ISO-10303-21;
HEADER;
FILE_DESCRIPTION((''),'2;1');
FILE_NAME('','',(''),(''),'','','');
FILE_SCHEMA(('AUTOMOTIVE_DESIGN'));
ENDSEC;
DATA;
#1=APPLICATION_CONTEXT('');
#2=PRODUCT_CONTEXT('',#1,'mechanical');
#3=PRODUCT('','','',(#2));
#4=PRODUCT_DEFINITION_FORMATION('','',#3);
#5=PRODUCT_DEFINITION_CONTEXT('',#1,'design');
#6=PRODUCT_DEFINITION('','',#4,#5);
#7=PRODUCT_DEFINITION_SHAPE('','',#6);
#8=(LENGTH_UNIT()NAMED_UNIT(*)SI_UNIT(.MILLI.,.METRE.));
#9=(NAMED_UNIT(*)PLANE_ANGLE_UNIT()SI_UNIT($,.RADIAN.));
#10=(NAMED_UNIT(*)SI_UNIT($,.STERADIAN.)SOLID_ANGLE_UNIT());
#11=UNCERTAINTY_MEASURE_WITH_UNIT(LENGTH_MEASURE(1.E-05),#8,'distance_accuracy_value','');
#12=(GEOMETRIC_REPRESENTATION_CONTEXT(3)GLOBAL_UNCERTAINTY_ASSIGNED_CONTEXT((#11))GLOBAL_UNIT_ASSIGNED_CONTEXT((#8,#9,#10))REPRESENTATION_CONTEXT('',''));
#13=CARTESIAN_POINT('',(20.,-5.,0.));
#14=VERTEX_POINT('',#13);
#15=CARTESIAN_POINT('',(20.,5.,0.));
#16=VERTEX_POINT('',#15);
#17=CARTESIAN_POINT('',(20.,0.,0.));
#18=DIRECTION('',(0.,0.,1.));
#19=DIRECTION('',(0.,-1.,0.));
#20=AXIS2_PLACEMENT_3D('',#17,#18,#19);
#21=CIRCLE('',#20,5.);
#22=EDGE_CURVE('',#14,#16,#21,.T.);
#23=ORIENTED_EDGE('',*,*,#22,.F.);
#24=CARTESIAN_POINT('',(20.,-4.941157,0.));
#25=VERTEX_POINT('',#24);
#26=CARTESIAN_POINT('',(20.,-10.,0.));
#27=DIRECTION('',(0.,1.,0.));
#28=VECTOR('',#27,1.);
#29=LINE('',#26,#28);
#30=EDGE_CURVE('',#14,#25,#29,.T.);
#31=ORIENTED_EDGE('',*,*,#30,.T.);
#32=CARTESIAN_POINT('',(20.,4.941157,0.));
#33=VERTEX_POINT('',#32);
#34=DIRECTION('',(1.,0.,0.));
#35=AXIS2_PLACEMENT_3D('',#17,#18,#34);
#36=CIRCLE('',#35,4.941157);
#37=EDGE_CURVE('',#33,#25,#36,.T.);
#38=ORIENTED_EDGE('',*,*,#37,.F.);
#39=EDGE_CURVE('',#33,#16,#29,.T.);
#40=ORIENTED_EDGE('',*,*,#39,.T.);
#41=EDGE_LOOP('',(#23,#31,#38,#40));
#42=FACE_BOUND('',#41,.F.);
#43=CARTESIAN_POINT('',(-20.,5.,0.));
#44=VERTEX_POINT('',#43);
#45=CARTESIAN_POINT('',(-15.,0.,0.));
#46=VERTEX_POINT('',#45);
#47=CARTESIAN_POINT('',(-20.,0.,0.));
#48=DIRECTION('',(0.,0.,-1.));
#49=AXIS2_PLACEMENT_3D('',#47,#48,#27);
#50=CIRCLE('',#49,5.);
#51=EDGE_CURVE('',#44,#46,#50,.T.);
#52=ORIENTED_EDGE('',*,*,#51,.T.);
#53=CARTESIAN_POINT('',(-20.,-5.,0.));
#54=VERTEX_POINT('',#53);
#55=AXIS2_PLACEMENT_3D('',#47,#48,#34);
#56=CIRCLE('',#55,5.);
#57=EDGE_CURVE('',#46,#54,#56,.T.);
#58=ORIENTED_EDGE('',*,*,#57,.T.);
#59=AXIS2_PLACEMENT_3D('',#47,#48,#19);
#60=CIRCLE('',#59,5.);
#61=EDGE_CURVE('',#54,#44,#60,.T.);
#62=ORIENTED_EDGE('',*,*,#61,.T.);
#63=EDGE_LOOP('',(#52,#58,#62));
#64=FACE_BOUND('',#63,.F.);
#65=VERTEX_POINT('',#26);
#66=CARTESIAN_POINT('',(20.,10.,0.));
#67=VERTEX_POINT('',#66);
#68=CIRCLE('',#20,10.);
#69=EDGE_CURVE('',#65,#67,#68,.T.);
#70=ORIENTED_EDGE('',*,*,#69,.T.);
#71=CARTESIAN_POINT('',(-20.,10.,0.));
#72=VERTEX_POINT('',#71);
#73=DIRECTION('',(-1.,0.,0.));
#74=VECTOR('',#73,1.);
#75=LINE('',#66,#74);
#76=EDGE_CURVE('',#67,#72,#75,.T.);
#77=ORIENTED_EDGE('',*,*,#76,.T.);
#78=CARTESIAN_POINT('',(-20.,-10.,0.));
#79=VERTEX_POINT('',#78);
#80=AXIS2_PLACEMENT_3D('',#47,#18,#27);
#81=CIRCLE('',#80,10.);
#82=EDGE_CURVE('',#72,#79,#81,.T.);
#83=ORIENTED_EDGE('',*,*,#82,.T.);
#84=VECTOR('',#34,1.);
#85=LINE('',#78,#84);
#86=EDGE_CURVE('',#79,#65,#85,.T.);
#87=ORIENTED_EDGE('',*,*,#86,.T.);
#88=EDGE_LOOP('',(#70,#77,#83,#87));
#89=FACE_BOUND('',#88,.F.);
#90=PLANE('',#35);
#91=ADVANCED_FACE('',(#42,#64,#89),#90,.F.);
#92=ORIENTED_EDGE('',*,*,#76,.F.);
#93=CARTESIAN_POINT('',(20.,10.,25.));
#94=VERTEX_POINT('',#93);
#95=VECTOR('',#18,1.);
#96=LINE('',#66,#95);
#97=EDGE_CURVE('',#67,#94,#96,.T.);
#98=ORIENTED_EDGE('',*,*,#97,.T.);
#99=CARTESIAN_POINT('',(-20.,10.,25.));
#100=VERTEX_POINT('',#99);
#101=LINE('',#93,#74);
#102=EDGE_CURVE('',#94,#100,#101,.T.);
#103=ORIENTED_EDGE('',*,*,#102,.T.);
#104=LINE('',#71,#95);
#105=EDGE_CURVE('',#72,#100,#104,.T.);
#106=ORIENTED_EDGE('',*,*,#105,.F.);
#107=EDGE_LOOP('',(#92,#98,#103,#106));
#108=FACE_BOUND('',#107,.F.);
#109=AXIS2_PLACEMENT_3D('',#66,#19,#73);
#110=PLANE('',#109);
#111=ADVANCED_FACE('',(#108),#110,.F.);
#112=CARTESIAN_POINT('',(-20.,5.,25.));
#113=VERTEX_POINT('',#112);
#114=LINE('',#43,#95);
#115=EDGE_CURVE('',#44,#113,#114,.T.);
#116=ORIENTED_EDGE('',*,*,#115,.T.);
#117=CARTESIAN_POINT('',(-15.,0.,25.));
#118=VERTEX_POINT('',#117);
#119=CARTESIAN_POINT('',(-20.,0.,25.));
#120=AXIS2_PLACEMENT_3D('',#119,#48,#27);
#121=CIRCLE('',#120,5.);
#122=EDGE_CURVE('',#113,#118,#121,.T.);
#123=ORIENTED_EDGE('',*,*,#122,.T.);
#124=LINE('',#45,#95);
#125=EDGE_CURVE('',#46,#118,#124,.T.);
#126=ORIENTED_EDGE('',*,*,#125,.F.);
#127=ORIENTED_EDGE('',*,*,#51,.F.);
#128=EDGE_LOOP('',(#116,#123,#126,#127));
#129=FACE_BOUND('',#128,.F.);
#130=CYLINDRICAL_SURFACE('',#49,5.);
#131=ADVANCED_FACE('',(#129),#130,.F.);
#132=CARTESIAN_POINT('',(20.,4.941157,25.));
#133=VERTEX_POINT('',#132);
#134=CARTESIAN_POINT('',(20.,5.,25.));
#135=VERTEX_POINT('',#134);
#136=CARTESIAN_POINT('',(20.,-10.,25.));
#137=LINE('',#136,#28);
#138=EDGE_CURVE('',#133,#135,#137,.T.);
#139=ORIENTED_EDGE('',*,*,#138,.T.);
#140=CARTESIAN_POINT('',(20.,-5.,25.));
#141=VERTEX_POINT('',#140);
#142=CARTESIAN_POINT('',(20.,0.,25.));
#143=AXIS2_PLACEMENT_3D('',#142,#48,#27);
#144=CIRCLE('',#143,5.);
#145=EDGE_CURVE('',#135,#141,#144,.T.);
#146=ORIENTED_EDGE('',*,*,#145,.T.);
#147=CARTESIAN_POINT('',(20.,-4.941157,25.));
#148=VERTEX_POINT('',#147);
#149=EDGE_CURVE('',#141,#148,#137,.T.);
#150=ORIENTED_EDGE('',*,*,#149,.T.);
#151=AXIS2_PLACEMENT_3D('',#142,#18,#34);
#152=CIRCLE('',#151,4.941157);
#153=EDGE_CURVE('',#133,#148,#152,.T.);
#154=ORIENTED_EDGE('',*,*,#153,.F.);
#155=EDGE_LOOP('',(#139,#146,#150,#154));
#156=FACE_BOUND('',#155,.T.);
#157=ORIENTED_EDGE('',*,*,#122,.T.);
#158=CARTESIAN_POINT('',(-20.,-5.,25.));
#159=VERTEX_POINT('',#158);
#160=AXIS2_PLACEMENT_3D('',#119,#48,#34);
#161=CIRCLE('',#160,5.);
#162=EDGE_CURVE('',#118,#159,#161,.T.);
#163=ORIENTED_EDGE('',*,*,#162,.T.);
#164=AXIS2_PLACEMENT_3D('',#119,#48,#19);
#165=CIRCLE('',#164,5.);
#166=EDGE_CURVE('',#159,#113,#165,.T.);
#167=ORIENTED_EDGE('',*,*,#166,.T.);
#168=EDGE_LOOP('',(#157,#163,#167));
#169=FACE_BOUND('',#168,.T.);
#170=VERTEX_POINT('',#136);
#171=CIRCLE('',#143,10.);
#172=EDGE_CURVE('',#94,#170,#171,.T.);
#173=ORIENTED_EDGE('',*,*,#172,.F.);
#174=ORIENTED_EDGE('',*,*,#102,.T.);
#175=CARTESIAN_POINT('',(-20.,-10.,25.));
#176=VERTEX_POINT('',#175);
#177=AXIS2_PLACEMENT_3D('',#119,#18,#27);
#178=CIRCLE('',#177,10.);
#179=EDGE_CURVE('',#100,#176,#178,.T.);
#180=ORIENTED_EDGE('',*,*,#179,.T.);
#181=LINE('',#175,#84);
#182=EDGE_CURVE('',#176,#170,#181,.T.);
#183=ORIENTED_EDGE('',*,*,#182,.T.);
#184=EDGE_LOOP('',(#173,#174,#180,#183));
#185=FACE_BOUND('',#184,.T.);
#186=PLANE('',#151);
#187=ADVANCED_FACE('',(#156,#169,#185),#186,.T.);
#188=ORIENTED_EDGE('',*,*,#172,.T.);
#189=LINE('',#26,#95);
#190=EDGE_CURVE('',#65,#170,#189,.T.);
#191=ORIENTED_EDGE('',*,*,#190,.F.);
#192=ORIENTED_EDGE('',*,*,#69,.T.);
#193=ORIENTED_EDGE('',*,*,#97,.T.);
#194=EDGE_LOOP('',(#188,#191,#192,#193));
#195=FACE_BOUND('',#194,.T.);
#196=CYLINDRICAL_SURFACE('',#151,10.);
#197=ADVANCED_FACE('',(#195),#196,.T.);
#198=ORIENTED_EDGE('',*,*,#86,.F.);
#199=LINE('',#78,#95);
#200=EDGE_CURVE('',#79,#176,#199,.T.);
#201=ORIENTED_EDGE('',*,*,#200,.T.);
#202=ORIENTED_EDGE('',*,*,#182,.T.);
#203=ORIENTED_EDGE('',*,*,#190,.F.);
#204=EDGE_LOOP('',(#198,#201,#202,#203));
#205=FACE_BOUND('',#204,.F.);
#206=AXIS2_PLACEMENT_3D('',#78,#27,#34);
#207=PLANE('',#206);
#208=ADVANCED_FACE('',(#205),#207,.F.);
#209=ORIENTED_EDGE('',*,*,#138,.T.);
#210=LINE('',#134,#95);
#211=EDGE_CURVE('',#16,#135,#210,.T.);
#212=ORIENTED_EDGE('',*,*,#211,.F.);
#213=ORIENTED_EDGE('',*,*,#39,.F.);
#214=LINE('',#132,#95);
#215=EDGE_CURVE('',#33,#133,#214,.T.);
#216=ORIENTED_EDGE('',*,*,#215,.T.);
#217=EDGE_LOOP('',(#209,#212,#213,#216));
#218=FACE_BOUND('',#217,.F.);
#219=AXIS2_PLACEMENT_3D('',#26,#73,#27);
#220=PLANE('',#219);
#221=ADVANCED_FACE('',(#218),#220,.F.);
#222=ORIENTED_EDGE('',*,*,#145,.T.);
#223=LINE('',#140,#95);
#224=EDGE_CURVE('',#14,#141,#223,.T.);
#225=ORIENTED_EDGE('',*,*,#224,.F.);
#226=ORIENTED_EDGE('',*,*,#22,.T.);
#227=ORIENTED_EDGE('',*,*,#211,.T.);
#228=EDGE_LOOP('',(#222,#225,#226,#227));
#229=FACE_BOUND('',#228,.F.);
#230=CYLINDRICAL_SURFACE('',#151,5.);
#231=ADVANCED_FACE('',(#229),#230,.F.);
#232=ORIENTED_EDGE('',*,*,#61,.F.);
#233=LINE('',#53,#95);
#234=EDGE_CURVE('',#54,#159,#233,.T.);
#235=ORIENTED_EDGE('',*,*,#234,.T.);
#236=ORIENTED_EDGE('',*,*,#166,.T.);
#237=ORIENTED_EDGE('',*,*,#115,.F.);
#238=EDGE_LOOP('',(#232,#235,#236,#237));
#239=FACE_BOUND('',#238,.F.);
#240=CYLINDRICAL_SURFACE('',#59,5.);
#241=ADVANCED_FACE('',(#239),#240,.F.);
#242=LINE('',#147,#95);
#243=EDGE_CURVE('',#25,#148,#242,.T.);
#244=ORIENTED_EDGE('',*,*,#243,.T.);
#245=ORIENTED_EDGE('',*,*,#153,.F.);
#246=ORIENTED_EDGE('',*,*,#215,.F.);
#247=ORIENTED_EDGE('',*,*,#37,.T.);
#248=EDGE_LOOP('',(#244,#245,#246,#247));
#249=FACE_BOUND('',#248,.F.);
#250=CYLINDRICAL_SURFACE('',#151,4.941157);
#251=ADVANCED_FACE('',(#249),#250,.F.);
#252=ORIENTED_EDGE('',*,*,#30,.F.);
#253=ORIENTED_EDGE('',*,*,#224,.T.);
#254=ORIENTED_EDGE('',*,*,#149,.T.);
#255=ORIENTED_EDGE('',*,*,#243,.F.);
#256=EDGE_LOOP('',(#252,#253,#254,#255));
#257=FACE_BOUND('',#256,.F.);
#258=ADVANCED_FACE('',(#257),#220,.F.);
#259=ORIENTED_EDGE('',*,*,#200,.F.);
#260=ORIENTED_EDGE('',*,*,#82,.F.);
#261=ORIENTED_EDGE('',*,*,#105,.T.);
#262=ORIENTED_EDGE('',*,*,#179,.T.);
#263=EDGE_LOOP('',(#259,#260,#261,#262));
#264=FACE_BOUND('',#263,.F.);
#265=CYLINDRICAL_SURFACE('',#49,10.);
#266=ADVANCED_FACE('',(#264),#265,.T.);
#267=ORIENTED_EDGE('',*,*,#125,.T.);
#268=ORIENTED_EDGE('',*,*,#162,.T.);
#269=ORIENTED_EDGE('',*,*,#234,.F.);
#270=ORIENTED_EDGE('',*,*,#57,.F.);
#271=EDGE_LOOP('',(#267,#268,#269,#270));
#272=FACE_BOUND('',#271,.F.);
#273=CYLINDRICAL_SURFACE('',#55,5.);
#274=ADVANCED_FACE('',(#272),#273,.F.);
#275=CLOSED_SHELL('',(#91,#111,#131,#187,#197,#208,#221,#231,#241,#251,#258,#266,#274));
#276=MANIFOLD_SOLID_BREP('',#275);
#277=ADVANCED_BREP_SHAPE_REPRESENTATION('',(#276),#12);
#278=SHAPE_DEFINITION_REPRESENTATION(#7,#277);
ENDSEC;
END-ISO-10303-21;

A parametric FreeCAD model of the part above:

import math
import FreeCAD as App
import Part
import Sketcher
from FreeCAD import Vector
Q = App.Units.Quantity

doc = App.newDocument("Part")
body = doc.addObject("PartDesign::Body", "Body")

# Sketch on XY plane
sketch1 = body.newObject("Sketcher::SketchObject", "Sketch")
sketch1.AttachmentSupport = (doc.getObject("XY_Plane"), [""])
sketch1.MapMode = "FlatFace"
sketch1.addGeometry([
    Part.LineSegment(Vector(-20, -10, 0), Vector(20, -10, 0)),  # 0
    Part.LineSegment(Vector(20, -10, 0), Vector(20, 10, 0)),  # 1
    Part.LineSegment(Vector(20, 10, 0), Vector(-20, 10, 0)),  # 2
    Part.ArcOfCircle(Part.Circle(Vector(-20, 0, 0), Vector(0, 0, 1), 10), math.radians(90), math.radians(270)),  # 3
    Part.ArcOfCircle(Part.Circle(Vector(-20, 0, 0), Vector(0, 0, 1), 5), math.radians(0), math.radians(90)),  # 4
    Part.ArcOfCircle(Part.Circle(Vector(-20, 0, 0), Vector(0, 0, 1), 5), math.radians(-90), math.radians(0)),  # 5
    Part.ArcOfCircle(Part.Circle(Vector(-20, 0, 0), Vector(0, 0, 1), 5), math.radians(90), math.radians(270)),  # 6
], False)
sketch1.addConstraint([
    Sketcher.Constraint("Coincident", 0, 2, 1, 1),
    Sketcher.Constraint("Coincident", 1, 2, 2, 1),
    Sketcher.Constraint("Tangent", 2, 2, 3, 1),
    Sketcher.Constraint("Tangent", 3, 2, 0, 1),
    Sketcher.Constraint("Tangent", 4, 1, 5, 2),
    Sketcher.Constraint("Tangent", 5, 1, 6, 2),
    Sketcher.Constraint("Tangent", 6, 1, 4, 2),
    Sketcher.Constraint("Horizontal", 0),
    Sketcher.Constraint("Vertical", 1),
    Sketcher.Constraint("Horizontal", 2),
    Sketcher.Constraint("Coincident", 4, 3, 3, 3),
    Sketcher.Constraint("Symmetric", 0, 2, 2, 2, -1, 1),
    Sketcher.Constraint("PointOnObject", 4, 1, -1),
    Sketcher.Constraint("Vertical", 3, 2, 5, 1),
    Sketcher.Constraint("Vertical", 5, 1, 6, 1),
    Sketcher.Constraint("Radius", 3, Q("10 mm")),
    Sketcher.Constraint("Radius", 4, Q("5 mm")),
    Sketcher.Constraint("DistanceX", 0, 1, 0, 2, Q("40 mm")),
])
pad1 = body.newObject("PartDesign::Pad", "Pad")
pad1.Profile = sketch1
pad1.Length = 25

# Sketch on XY plane
sketch2 = body.newObject("Sketcher::SketchObject", "Sketch001")
sketch2.AttachmentSupport = (doc.getObject("XY_Plane"), [""])
sketch2.MapMode = "FlatFace"
sketch2.AttachmentOffset = App.Placement(Vector(0, 0, 25), App.Rotation())
sketch2.addGeometry([
    Part.Circle(Vector(20, 0, 0), Vector(0, 0, 1), 10),
    Part.Circle(Vector(20, 0, 0), Vector(0, 0, 1), 5),
], False)
sketch2.addConstraint([
    Sketcher.Constraint("Coincident", 1, 3, 0, 3),
    Sketcher.Constraint("PointOnObject", 0, 3, -1),
    Sketcher.Constraint("Diameter", 0, Q("20 mm")),
    Sketcher.Constraint("Diameter", 1, Q("10 mm")),
    Sketcher.Constraint("DistanceX", -1, 1, 0, 3, Q("20 mm")),
])
pad2 = body.newObject("PartDesign::Pad", "Pad001")
pad2.Profile = sketch2
pad2.Length = 25
pad2.Reversed = True

# Sketch on XY plane
sketch3 = body.newObject("Sketcher::SketchObject", "Sketch002")
sketch3.AttachmentSupport = (doc.getObject("XY_Plane"), [""])
sketch3.MapMode = "FlatFace"
sketch3.AttachmentOffset = App.Placement(Vector(0, 0, 25), App.Rotation())
sketch3.addGeometry(Part.Circle(Vector(20, 0, 0), Vector(0, 0, 1), 4.941157), False)
sketch3.addConstraint([
    Sketcher.Constraint("PointOnObject", 0, 3, -1),
    Sketcher.Constraint("DistanceX", -1, 1, 0, 3, Q("20 mm")),
    Sketcher.Constraint("Diameter", 0, Q("9.882315 mm")),
])
pocket1 = body.newObject("PartDesign::Pocket", "Pocket")
pocket1.Profile = sketch3
pocket1.Type = "ThroughAll"

doc.recompute()
